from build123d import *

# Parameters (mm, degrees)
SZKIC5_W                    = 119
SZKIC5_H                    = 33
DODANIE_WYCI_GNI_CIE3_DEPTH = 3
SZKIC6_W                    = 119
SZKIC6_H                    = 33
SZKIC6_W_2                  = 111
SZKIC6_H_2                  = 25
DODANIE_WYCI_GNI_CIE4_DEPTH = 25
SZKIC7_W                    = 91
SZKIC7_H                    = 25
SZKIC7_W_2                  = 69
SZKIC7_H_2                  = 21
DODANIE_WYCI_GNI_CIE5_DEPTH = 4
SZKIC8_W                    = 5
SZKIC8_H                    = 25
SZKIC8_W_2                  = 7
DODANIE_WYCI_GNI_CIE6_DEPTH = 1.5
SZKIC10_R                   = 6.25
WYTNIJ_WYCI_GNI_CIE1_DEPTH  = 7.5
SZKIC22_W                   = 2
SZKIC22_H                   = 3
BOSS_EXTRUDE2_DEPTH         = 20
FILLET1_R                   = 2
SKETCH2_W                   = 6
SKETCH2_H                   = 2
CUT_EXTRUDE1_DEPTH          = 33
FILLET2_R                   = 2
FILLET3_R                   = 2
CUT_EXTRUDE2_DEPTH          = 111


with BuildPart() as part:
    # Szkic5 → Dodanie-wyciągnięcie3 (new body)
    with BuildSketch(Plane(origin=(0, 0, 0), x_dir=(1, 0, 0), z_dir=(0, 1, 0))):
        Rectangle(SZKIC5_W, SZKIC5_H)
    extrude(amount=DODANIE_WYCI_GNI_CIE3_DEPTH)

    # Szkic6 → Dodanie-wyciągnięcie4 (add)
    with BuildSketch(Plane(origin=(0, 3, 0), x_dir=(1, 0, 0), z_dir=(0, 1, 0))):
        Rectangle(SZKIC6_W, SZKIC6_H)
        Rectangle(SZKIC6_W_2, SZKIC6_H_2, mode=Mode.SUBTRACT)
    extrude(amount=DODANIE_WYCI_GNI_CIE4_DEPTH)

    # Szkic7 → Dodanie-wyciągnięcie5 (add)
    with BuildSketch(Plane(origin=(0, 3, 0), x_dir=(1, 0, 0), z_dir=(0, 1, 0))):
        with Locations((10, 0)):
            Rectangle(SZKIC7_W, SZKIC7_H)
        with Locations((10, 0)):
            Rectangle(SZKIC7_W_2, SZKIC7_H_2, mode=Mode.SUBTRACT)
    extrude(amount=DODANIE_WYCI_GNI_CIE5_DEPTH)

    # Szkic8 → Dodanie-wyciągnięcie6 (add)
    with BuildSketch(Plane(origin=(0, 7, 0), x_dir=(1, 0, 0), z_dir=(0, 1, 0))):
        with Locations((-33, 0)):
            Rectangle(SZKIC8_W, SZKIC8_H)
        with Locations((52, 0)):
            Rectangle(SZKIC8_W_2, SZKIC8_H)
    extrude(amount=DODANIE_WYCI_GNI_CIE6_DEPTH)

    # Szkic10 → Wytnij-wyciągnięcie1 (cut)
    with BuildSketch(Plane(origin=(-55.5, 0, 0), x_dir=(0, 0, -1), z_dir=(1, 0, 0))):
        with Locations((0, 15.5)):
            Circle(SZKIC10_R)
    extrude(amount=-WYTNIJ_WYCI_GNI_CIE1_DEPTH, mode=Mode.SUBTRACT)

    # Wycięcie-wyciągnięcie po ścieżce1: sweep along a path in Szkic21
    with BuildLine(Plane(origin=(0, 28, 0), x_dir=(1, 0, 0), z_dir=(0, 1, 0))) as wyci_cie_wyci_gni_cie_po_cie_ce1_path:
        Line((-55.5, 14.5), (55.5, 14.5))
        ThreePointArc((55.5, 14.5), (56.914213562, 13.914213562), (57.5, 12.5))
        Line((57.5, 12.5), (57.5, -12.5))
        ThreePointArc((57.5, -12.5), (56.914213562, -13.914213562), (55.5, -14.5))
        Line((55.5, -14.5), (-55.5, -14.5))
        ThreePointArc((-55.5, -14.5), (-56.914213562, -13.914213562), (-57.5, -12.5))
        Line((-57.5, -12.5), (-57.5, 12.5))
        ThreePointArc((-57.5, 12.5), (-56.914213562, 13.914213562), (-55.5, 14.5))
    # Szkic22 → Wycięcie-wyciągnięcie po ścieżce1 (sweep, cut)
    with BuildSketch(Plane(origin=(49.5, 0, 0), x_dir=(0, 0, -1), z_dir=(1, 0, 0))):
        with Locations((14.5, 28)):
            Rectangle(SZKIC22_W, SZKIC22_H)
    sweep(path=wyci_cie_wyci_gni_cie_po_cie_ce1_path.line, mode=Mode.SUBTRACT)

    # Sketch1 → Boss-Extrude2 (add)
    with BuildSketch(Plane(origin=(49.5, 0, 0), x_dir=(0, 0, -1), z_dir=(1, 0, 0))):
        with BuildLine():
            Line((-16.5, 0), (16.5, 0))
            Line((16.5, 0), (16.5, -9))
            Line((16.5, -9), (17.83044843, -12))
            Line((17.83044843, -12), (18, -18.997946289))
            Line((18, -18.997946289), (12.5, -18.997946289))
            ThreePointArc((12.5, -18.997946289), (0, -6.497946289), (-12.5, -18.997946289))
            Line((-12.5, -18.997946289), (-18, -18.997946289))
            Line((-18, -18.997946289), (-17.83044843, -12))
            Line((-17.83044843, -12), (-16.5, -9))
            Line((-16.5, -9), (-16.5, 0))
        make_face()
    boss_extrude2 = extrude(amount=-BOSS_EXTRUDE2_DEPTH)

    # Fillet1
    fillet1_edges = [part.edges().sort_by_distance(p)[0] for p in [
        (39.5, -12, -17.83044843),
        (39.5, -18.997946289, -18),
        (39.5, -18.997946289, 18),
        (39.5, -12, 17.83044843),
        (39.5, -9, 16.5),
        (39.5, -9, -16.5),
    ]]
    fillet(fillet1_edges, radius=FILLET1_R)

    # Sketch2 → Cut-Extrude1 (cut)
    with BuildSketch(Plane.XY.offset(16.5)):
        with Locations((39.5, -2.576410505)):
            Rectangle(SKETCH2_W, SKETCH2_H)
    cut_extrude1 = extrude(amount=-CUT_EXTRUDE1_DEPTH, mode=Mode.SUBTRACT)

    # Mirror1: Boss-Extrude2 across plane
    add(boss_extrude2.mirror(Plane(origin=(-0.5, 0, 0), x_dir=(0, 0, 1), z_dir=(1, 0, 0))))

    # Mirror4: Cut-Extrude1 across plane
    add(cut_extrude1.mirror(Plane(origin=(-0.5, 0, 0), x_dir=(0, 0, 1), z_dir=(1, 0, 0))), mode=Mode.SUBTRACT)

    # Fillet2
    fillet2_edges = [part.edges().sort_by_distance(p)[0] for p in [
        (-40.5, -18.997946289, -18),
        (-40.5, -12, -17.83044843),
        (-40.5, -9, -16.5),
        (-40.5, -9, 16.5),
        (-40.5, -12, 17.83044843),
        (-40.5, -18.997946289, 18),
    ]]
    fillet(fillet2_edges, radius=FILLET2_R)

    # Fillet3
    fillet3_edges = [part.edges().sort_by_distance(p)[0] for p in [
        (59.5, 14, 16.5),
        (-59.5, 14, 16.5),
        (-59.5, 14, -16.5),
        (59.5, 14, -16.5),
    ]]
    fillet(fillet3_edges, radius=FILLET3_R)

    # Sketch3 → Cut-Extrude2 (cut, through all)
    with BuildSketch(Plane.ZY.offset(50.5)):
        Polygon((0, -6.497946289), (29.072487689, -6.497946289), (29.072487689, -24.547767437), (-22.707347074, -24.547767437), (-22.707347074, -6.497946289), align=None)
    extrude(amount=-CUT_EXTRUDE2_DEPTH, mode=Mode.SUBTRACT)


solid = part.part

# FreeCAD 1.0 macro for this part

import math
import FreeCAD as App
import Part
import Sketcher
from FreeCAD import Vector
Q = App.Units.Quantity


def edges_at(feature, points):
    """Names of the edges that pass closest to the given points."""
    edges = feature.Shape.Edges
    near = lambda p: min(range(len(edges)), key=lambda i: edges[i].distToShape(Part.Vertex(*p))[0])
    return sorted({f"Edge{near(p) + 1}" for p in points})


def add_polygon(sketch, points):
    """Adds a closed chain of lines whose ends are joined by coincident constraints."""
    first, n = sketch.GeometryCount, len(points)
    for a, b in zip(points, points[1:] + points[:1]):
        sketch.addGeometry(Part.LineSegment(App.Vector(*a, 0), App.Vector(*b, 0)), False)
    for i in range(n):
        sketch.addConstraint(Sketcher.Constraint("Coincident", first + i, 2, first + (i + 1) % n, 1))

doc = App.newDocument("Part")
body = doc.addObject("PartDesign::Body", "Body")

sketch1 = body.newObject("Sketcher::SketchObject", "Sketch")
sketch1.AttachmentSupport = (doc.getObject("XZ_Plane"), [""])
sketch1.MapMode = "FlatFace"
add_polygon(sketch1, [(-60, -16), (-60, 16), (60, 16), (60, -16)])
sketch1.addConstraint(Sketcher.Constraint("Vertical", 0))
sketch1.addConstraint(Sketcher.Constraint("Horizontal", 1))
sketch1.addConstraint(Sketcher.Constraint("Vertical", 2))
sketch1.addConstraint(Sketcher.Constraint("Horizontal", 3))
sketch1.addConstraint(Sketcher.Constraint("Symmetric", 0, 2, 2, 2, -1, 1))
sketch1.addConstraint(Sketcher.Constraint("DistanceX", 1, 1, 1, 2, Q("119 mm")))
sketch1.addConstraint(Sketcher.Constraint("DistanceY", 0, 1, 0, 2, Q("33 mm")))
pad1 = body.newObject("PartDesign::Pad", "Pad")
pad1.Profile = sketch1
pad1.Length = 3
pad1.Reversed = True

sketch2 = body.newObject("Sketcher::SketchObject", "Sketch001")
sketch2.AttachmentSupport = (doc.getObject("XZ_Plane"), [""])
sketch2.MapMode = "FlatFace"
sketch2.AttachmentOffset = App.Placement(Vector(0, 0, -3), App.Rotation())
add_polygon(sketch2, [(-60, -16), (-60, 16), (60, 16), (60, -16)])
add_polygon(sketch2, [(56, 12), (-56, 12), (-56, -12), (56, -12)])
sketch2.addConstraint(Sketcher.Constraint("Vertical", 0))
sketch2.addConstraint(Sketcher.Constraint("Horizontal", 1))
sketch2.addConstraint(Sketcher.Constraint("Vertical", 2))
sketch2.addConstraint(Sketcher.Constraint("Horizontal", 3))
sketch2.addConstraint(Sketcher.Constraint("Horizontal", 4))
sketch2.addConstraint(Sketcher.Constraint("Vertical", 5))
sketch2.addConstraint(Sketcher.Constraint("Horizontal", 6))
sketch2.addConstraint(Sketcher.Constraint("Vertical", 7))
sketch2.addConstraint(Sketcher.Constraint("Symmetric", 0, 2, 2, 2, -1, 1))
sketch2.addConstraint(Sketcher.Constraint("Symmetric", 4, 2, 6, 2, -1, 1))
sketch2.addConstraint(Sketcher.Constraint("DistanceX", 1, 1, 1, 2, Q("119 mm")))
sketch2.addConstraint(Sketcher.Constraint("DistanceX", 4, 2, 4, 1, Q("111 mm")))
sketch2.addConstraint(Sketcher.Constraint("DistanceY", 0, 1, 0, 2, Q("33 mm")))
sketch2.addConstraint(Sketcher.Constraint("DistanceY", 5, 2, 5, 1, Q("25 mm")))
pad2 = body.newObject("PartDesign::Pad", "Pad001")
pad2.Profile = sketch2
pad2.Length = 25
pad2.Reversed = True

sketch3 = body.newObject("Sketcher::SketchObject", "Sketch002")
sketch3.AttachmentSupport = (doc.getObject("XZ_Plane"), [""])
sketch3.MapMode = "FlatFace"
sketch3.AttachmentOffset = App.Placement(Vector(0, 0, -3), App.Rotation())
add_polygon(sketch3, [(-36, -12), (-36, 12), (56, 12), (56, -12)])
add_polygon(sketch3, [(44, 10), (-24, 10), (-24, -10), (44, -10)])
sketch3.addConstraint(Sketcher.Constraint("Vertical", 0))
sketch3.addConstraint(Sketcher.Constraint("Horizontal", 1))
sketch3.addConstraint(Sketcher.Constraint("Vertical", 2))
sketch3.addConstraint(Sketcher.Constraint("Horizontal", 3))
sketch3.addConstraint(Sketcher.Constraint("Horizontal", 4))
sketch3.addConstraint(Sketcher.Constraint("Vertical", 5))
sketch3.addConstraint(Sketcher.Constraint("Horizontal", 6))
sketch3.addConstraint(Sketcher.Constraint("Vertical", 7))
sketch3.addConstraint(Sketcher.Constraint("DistanceX", 1, 1, 1, 2, Q("91 mm")))
sketch3.addConstraint(Sketcher.Constraint("DistanceX", 4, 2, 4, 1, Q("69 mm")))
sketch3.addConstraint(Sketcher.Constraint("DistanceY", 0, 1, 0, 2, Q("25 mm")))
sketch3.addConstraint(Sketcher.Constraint("DistanceY", 5, 2, 5, 1, Q("21 mm")))
sketch3.addConstraint(Sketcher.Constraint("DistanceX", 0, 2, 4, 2, Q("11 mm")))
sketch3.addConstraint(Sketcher.Constraint("DistanceY", 4, 2, 0, 2, Q("2 mm")))
sketch3.addConstraint(Sketcher.Constraint("DistanceX", 0, 2, -1, 1, Q("35.5 mm")))
sketch3.addConstraint(Sketcher.Constraint("DistanceY", -1, 1, 0, 2, Q("12.5 mm")))
pad3 = body.newObject("PartDesign::Pad", "Pad002")
pad3.Profile = sketch3
pad3.Length = 4
pad3.Reversed = True

sketch4 = body.newObject("Sketcher::SketchObject", "Sketch003")
sketch4.AttachmentSupport = (doc.getObject("XZ_Plane"), [""])
sketch4.MapMode = "FlatFace"
sketch4.AttachmentOffset = App.Placement(Vector(0, 0, -7), App.Rotation())
add_polygon(sketch4, [(-36, -12), (-36, 12), (-30, 12), (-30, -12)])
add_polygon(sketch4, [(48, -12), (48, 12), (56, 12), (56, -12)])
sketch4.addConstraint(Sketcher.Constraint("Vertical", 0))
sketch4.addConstraint(Sketcher.Constraint("Horizontal", 1))
sketch4.addConstraint(Sketcher.Constraint("Vertical", 2))
sketch4.addConstraint(Sketcher.Constraint("Horizontal", 3))
sketch4.addConstraint(Sketcher.Constraint("Vertical", 4))
sketch4.addConstraint(Sketcher.Constraint("Horizontal", 5))
sketch4.addConstraint(Sketcher.Constraint("Vertical", 6))
sketch4.addConstraint(Sketcher.Constraint("Horizontal", 7))
sketch4.addConstraint(Sketcher.Constraint("Horizontal", 1, 2, 4, 2))
sketch4.addConstraint(Sketcher.Constraint("Horizontal", 3, 2, 6, 2))
sketch4.addConstraint(Sketcher.Constraint("DistanceX", 1, 1, 1, 2, Q("5 mm")))
sketch4.addConstraint(Sketcher.Constraint("DistanceX", 5, 1, 5, 2, Q("7 mm")))
sketch4.addConstraint(Sketcher.Constraint("DistanceY", 0, 1, 0, 2, Q("25 mm")))
sketch4.addConstraint(Sketcher.Constraint("DistanceX", 1, 2, 4, 2, Q("79 mm")))
sketch4.addConstraint(Sketcher.Constraint("DistanceX", 0, 2, -1, 1, Q("35.5 mm")))
sketch4.addConstraint(Sketcher.Constraint("DistanceY", -1, 1, 0, 2, Q("12.5 mm")))
pad4 = body.newObject("PartDesign::Pad", "Pad003")
pad4.Profile = sketch4
pad4.Length = 1.5
pad4.Reversed = True

sketch5 = body.newObject("Sketcher::SketchObject", "Sketch004")
sketch5.AttachmentSupport = (doc.getObject("YZ_Plane"), [""])
sketch5.MapMode = "FlatFace"
sketch5.AttachmentOffset = App.Placement(Vector(0, 0, -55.5), App.Rotation())
sketch5.addGeometry(Part.Circle(Vector(16, 0, 0), Vector(0, 0, 1), 6), False)
sketch5.addConstraint(Sketcher.Constraint("PointOnObject", 0, 3, -1))
sketch5.addConstraint(Sketcher.Constraint("Diameter", 0, Q("12.5 mm")))
sketch5.addConstraint(Sketcher.Constraint("DistanceX", -1, 1, 0, 3, Q("15.5 mm")))
pocket1 = body.newObject("PartDesign::Pocket", "Pocket")
pocket1.Profile = sketch5
pocket1.Length = 7.5

sketch6 = body.newObject("Sketcher::SketchObject", "Sketch005")
sketch6.AttachmentSupport = (doc.getObject("YZ_Plane"), [""])
sketch6.MapMode = "FlatFace"
sketch6.AttachmentOffset = App.Placement(Vector(0, 0, 49.5), App.Rotation())
add_polygon(sketch6, [(29.5, -13.5), (26.5, -13.5), (26.5, -15.5), (29.5, -15.5)])
sketch6.addConstraint(Sketcher.Constraint("Horizontal", 0))
sketch6.addConstraint(Sketcher.Constraint("Vertical", 1))
sketch6.addConstraint(Sketcher.Constraint("Horizontal", 2))
sketch6.addConstraint(Sketcher.Constraint("Vertical", 3))
sketch6.addConstraint(Sketcher.Constraint("DistanceX", 0, 2, 0, 1, Q("3 mm")))
sketch6.addConstraint(Sketcher.Constraint("DistanceY", 1, 2, 1, 1, Q("2 mm")))
sketch6.addConstraint(Sketcher.Constraint("DistanceX", -1, 1, 0, 2, Q("26.5 mm")))
sketch6.addConstraint(Sketcher.Constraint("DistanceY", 0, 2, -1, 1, Q("13.5 mm")))

sketch7 = body.newObject("Sketcher::SketchObject", "Sketch006")
sketch7.AttachmentSupport = (doc.getObject("XZ_Plane"), [""])
sketch7.MapMode = "FlatFace"
sketch7.AttachmentOffset = App.Placement(Vector(0, 0, -28), App.Rotation())
sketch7.addGeometry(Part.LineSegment(Vector(-55.5, -14.5, 0), Vector(55.5, -14.5, 0)), False)
sketch7.addGeometry(Part.ArcOfCircle(Part.Circle(Vector(55.5, -12.5, 0), Vector(0, 0, 1), 2), math.radians(-90), math.radians(0)), False)
sketch7.addGeometry(Part.LineSegment(Vector(57.5, -12.5, 0), Vector(57.5, 12.5, 0)), False)
sketch7.addGeometry(Part.ArcOfCircle(Part.Circle(Vector(55.5, 12.5, 0), Vector(0, 0, 1), 2), math.radians(0), math.radians(90)), False)
sketch7.addGeometry(Part.LineSegment(Vector(55.5, 14.5, 0), Vector(-55.5, 14.5, 0)), False)
sketch7.addGeometry(Part.ArcOfCircle(Part.Circle(Vector(-55.5, 12.5, 0), Vector(0, 0, 1), 2), math.radians(90), math.radians(180)), False)
sketch7.addGeometry(Part.LineSegment(Vector(-57.5, 12.5, 0), Vector(-57.5, -12.5, 0)), False)
sketch7.addGeometry(Part.ArcOfCircle(Part.Circle(Vector(-55.5, -12.5, 0), Vector(0, 0, 1), 2), math.radians(-180), math.radians(-90)), False)
sketch7.addConstraint(Sketcher.Constraint("Tangent", 0, 2, 1, 1))
sketch7.addConstraint(Sketcher.Constraint("Tangent", 1, 2, 2, 1))
sketch7.addConstraint(Sketcher.Constraint("Tangent", 2, 2, 3, 1))
sketch7.addConstraint(Sketcher.Constraint("Tangent", 3, 2, 4, 1))
sketch7.addConstraint(Sketcher.Constraint("Tangent", 4, 2, 5, 1))
sketch7.addConstraint(Sketcher.Constraint("Tangent", 5, 2, 6, 1))
sketch7.addConstraint(Sketcher.Constraint("Tangent", 6, 2, 7, 1))
sketch7.addConstraint(Sketcher.Constraint("Tangent", 7, 2, 0, 1))
sketch7.addConstraint(Sketcher.Constraint("Horizontal", 0))
sketch7.addConstraint(Sketcher.Constraint("Vertical", 2))
sketch7.addConstraint(Sketcher.Constraint("Horizontal", 4))
sketch7.addConstraint(Sketcher.Constraint("Vertical", 6))
sketch7.addConstraint(Sketcher.Constraint("Equal", 1, 3))
sketch7.addConstraint(Sketcher.Constraint("Equal", 3, 5))
sketch7.addConstraint(Sketcher.Constraint("Equal", 5, 7))
sketch7.addConstraint(Sketcher.Constraint("Symmetric", 1, 3, 5, 3, -1, 1))
sketch7.addConstraint(Sketcher.Constraint("Radius", 1, Q("2 mm")))
sketch7.addConstraint(Sketcher.Constraint("DistanceX", 0, 1, 0, 2, Q("111 mm")))
sketch7.addConstraint(Sketcher.Constraint("DistanceY", 2, 1, 2, 2, Q("25 mm")))
doc.recompute()

subtractivepipe = body.newObject("PartDesign::SubtractivePipe", "SubtractivePipe")
subtractivepipe.Profile = sketch6
subtractivepipe.Spine = (sketch7, ["Edge1", "Edge2", "Edge3", "Edge4", "Edge5", "Edge6", "Edge7", "Edge8"])

sketch8 = body.newObject("Sketcher::SketchObject", "Sketch007")
sketch8.AttachmentSupport = (doc.getObject("YZ_Plane"), [""])
sketch8.MapMode = "FlatFace"
sketch8.AttachmentOffset = App.Placement(Vector(0, 0, 49.5), App.Rotation())
sketch8.addGeometry(Part.LineSegment(Vector(0, -16.5, 0), Vector(0, 16.5, 0)), False)
sketch8.addGeometry(Part.LineSegment(Vector(0, 16.5, 0), Vector(-9, 16.5, 0)), False)
sketch8.addGeometry(Part.LineSegment(Vector(-9, 16.5, 0), Vector(-12, 17.8, 0)), False)
sketch8.addGeometry(Part.LineSegment(Vector(-12, 17.8, 0), Vector(-19, 18, 0)), False)
sketch8.addGeometry(Part.LineSegment(Vector(-19, 18, 0), Vector(-19, 12.5, 0)), False)
sketch8.addGeometry(Part.ArcOfCircle(Part.Circle(Vector(-19, 0, 0), Vector(0, 0, 1), 12.5), math.radians(-90), math.radians(90)), False)
sketch8.addGeometry(Part.LineSegment(Vector(-19, -12.5, 0), Vector(-19, -18, 0)), False)
sketch8.addGeometry(Part.LineSegment(Vector(-19, -18, 0), Vector(-12, -17.8, 0)), False)
sketch8.addGeometry(Part.LineSegment(Vector(-12, -17.8, 0), Vector(-9, -16.5, 0)), False)
sketch8.addGeometry(Part.LineSegment(Vector(-9, -16.5, 0), Vector(0, -16.5, 0)), False)
sketch8.addConstraint(Sketcher.Constraint("Coincident", 0, 2, 1, 1))
sketch8.addConstraint(Sketcher.Constraint("Coincident", 1, 2, 2, 1))
sketch8.addConstraint(Sketcher.Constraint("Coincident", 2, 2, 3, 1))
sketch8.addConstraint(Sketcher.Constraint("Coincident", 3, 2, 4, 1))
sketch8.addConstraint(Sketcher.Constraint("Coincident", 4, 2, 5, 2))
sketch8.addConstraint(Sketcher.Constraint("Coincident", 5, 1, 6, 1))
sketch8.addConstraint(Sketcher.Constraint("Coincident", 6, 2, 7, 1))
sketch8.addConstraint(Sketcher.Constraint("Coincident", 7, 2, 8, 1))
sketch8.addConstraint(Sketcher.Constraint("Coincident", 8, 2, 9, 1))
sketch8.addConstraint(Sketcher.Constraint("Coincident", 9, 2, 0, 1))
sketch8.addConstraint(Sketcher.Constraint("Vertical", 0))
sketch8.addConstraint(Sketcher.Constraint("Horizontal", 1))
sketch8.addConstraint(Sketcher.Constraint("Vertical", 4))
sketch8.addConstraint(Sketcher.Constraint("Vertical", 6))
sketch8.addConstraint(Sketcher.Constraint("Horizontal", 9))
sketch8.addConstraint(Sketcher.Constraint("Symmetric", 0, 2, 9, 2, -1, 1))
sketch8.addConstraint(Sketcher.Constraint("Symmetric", 4, 2, 5, 1, -1))
sketch8.addConstraint(Sketcher.Constraint("Symmetric", 2, 2, 7, 2, -1))
sketch8.addConstraint(Sketcher.Constraint("Vertical", 5, 3, 3, 2))
sketch8.addConstraint(Sketcher.Constraint("Vertical", 1, 2, 8, 2))
sketch8.addConstraint(Sketcher.Constraint("Equal", 4, 6))
sketch8.addConstraint(Sketcher.Constraint("Radius", 5, Q("12.5 mm")))
sketch8.addConstraint(Sketcher.Constraint("DistanceX", 1, 2, 1, 1, Q("9 mm")))
sketch8.addConstraint(Sketcher.Constraint("DistanceY", 0, 1, 0, 2, Q("33 mm")))
sketch8.addConstraint(Sketcher.Constraint("Distance", 3, Q("7 mm")))
sketch8.addConstraint(Sketcher.Constraint("DistanceY", 4, 2, 4, 1, Q("5.5 mm")))
sketch8.addConstraint(Sketcher.Constraint("DistanceX", 2, 2, -1, 1, Q("12 mm")))
sketch8.addConstraint(Sketcher.Constraint("Distance", 2, Q("3.281782 mm")))
pad5 = body.newObject("PartDesign::Pad", "Pad004")
pad5.Profile = sketch8
pad5.Length = 20
pad5.Reversed = True
doc.recompute()

fillet = body.newObject("PartDesign::Fillet", "Fillet")
fillet.Base = (pad5, edges_at(pad5, [
    (39.5, -12, -17.83),
    (39.5, -18.998, -18),
    (39.5, -18.998, 18),
    (39.5, -12, 17.83),
    (39.5, -9, 16.5),
    (39.5, -9, -16.5),
]))
fillet.Radius = 2

sketch9 = body.newObject("Sketcher::SketchObject", "Sketch008")
sketch9.AttachmentSupport = (doc.getObject("XY_Plane"), [""])
sketch9.MapMode = "FlatFace"
sketch9.AttachmentOffset = App.Placement(Vector(0, 0, 16.5), App.Rotation())
add_polygon(sketch9, [(36.5, -1.6), (36.5, -3.6), (42.5, -3.6), (42.5, -1.6)])
sketch9.addConstraint(Sketcher.Constraint("Vertical", 0))
sketch9.addConstraint(Sketcher.Constraint("Horizontal", 1))
sketch9.addConstraint(Sketcher.Constraint("Vertical", 2))
sketch9.addConstraint(Sketcher.Constraint("Horizontal", 3))
sketch9.addConstraint(Sketcher.Constraint("DistanceX", 1, 1, 1, 2, Q("6 mm")))
sketch9.addConstraint(Sketcher.Constraint("DistanceY", 0, 2, 0, 1, Q("2 mm")))
sketch9.addConstraint(Sketcher.Constraint("DistanceX", -1, 1, 0, 2, Q("36.5 mm")))
sketch9.addConstraint(Sketcher.Constraint("DistanceY", 0, 2, -1, 1, Q("3.576411 mm")))
pocket2 = body.newObject("PartDesign::Pocket", "Pocket001")
pocket2.Profile = sketch9
pocket2.Length = 33
doc.recompute()

datumplane = body.newObject("PartDesign::Plane", "DatumPlane")
datumplane.AttachmentSupport = (doc.getObject("YZ_Plane"), [""])
datumplane.MapMode = "FlatFace"
datumplane.AttachmentOffset = App.Placement(Vector(0, 0, -0.5), App.Rotation())
mirrored = body.newObject("PartDesign::Mirrored", "Mirrored")
mirrored.Originals = [pad5]
mirrored.MirrorPlane = (datumplane, [""])
body.Tip = mirrored
doc.recompute()

datumplane2 = body.newObject("PartDesign::Plane", "DatumPlane001")
datumplane2.AttachmentSupport = (doc.getObject("YZ_Plane"), [""])
datumplane2.MapMode = "FlatFace"
datumplane2.AttachmentOffset = App.Placement(Vector(0, 0, -0.5), App.Rotation())
mirrored2 = body.newObject("PartDesign::Mirrored", "Mirrored001")
mirrored2.Originals = [pocket2]
mirrored2.MirrorPlane = (datumplane2, [""])
body.Tip = mirrored2
doc.recompute()

fillet2 = body.newObject("PartDesign::Fillet", "Fillet001")
fillet2.Base = (mirrored2, edges_at(mirrored2, [
    (-40.5, -18.998, -18),
    (-40.5, -12, -17.83),
    (-40.5, -9, -16.5),
    (-40.5, -9, 16.5),
    (-40.5, -12, 17.83),
    (-40.5, -18.998, 18),
]))
fillet2.Radius = 2
doc.recompute()

fillet3 = body.newObject("PartDesign::Fillet", "Fillet002")
fillet3.Base = (fillet2, edges_at(fillet2, [
    (59.5, 14, 16.5),
    (-59.5, 14, 16.5),
    (-59.5, 14, -16.5),
    (59.5, 14, -16.5),
]))
fillet3.Radius = 2

sketch10 = body.newObject("Sketcher::SketchObject", "Sketch009")
sketch10.AttachmentSupport = (doc.getObject("YZ_Plane"), [""])
sketch10.MapMode = "FlatFace"
sketch10.AttachmentOffset = App.Placement(Vector(0, 0, -50.5), App.Rotation())
add_polygon(sketch10, [(-6, 29), (-6, -23), (-25, -23), (-25, 29)])
sketch10.addConstraint(Sketcher.Constraint("Vertical", 0))
sketch10.addConstraint(Sketcher.Constraint("Horizontal", 1))
sketch10.addConstraint(Sketcher.Constraint("Vertical", 2))
sketch10.addConstraint(Sketcher.Constraint("Horizontal", 3))
sketch10.addConstraint(Sketcher.Constraint("DistanceX", 1, 2, 1, 1, Q("18.049821 mm")))
sketch10.addConstraint(Sketcher.Constraint("DistanceY", 0, 2, 0, 1, Q("51.779835 mm")))
sketch10.addConstraint(Sketcher.Constraint("DistanceX", 0, 2, -1, 1, Q("6.497946 mm")))
sketch10.addConstraint(Sketcher.Constraint("DistanceY", 0, 2, -1, 1, Q("22.707347 mm")))
pocket3 = body.newObject("PartDesign::Pocket", "Pocket002")
pocket3.Profile = sketch10
pocket3.Type = "ThroughAll"
pocket3.Reversed = True

doc.recompute()
